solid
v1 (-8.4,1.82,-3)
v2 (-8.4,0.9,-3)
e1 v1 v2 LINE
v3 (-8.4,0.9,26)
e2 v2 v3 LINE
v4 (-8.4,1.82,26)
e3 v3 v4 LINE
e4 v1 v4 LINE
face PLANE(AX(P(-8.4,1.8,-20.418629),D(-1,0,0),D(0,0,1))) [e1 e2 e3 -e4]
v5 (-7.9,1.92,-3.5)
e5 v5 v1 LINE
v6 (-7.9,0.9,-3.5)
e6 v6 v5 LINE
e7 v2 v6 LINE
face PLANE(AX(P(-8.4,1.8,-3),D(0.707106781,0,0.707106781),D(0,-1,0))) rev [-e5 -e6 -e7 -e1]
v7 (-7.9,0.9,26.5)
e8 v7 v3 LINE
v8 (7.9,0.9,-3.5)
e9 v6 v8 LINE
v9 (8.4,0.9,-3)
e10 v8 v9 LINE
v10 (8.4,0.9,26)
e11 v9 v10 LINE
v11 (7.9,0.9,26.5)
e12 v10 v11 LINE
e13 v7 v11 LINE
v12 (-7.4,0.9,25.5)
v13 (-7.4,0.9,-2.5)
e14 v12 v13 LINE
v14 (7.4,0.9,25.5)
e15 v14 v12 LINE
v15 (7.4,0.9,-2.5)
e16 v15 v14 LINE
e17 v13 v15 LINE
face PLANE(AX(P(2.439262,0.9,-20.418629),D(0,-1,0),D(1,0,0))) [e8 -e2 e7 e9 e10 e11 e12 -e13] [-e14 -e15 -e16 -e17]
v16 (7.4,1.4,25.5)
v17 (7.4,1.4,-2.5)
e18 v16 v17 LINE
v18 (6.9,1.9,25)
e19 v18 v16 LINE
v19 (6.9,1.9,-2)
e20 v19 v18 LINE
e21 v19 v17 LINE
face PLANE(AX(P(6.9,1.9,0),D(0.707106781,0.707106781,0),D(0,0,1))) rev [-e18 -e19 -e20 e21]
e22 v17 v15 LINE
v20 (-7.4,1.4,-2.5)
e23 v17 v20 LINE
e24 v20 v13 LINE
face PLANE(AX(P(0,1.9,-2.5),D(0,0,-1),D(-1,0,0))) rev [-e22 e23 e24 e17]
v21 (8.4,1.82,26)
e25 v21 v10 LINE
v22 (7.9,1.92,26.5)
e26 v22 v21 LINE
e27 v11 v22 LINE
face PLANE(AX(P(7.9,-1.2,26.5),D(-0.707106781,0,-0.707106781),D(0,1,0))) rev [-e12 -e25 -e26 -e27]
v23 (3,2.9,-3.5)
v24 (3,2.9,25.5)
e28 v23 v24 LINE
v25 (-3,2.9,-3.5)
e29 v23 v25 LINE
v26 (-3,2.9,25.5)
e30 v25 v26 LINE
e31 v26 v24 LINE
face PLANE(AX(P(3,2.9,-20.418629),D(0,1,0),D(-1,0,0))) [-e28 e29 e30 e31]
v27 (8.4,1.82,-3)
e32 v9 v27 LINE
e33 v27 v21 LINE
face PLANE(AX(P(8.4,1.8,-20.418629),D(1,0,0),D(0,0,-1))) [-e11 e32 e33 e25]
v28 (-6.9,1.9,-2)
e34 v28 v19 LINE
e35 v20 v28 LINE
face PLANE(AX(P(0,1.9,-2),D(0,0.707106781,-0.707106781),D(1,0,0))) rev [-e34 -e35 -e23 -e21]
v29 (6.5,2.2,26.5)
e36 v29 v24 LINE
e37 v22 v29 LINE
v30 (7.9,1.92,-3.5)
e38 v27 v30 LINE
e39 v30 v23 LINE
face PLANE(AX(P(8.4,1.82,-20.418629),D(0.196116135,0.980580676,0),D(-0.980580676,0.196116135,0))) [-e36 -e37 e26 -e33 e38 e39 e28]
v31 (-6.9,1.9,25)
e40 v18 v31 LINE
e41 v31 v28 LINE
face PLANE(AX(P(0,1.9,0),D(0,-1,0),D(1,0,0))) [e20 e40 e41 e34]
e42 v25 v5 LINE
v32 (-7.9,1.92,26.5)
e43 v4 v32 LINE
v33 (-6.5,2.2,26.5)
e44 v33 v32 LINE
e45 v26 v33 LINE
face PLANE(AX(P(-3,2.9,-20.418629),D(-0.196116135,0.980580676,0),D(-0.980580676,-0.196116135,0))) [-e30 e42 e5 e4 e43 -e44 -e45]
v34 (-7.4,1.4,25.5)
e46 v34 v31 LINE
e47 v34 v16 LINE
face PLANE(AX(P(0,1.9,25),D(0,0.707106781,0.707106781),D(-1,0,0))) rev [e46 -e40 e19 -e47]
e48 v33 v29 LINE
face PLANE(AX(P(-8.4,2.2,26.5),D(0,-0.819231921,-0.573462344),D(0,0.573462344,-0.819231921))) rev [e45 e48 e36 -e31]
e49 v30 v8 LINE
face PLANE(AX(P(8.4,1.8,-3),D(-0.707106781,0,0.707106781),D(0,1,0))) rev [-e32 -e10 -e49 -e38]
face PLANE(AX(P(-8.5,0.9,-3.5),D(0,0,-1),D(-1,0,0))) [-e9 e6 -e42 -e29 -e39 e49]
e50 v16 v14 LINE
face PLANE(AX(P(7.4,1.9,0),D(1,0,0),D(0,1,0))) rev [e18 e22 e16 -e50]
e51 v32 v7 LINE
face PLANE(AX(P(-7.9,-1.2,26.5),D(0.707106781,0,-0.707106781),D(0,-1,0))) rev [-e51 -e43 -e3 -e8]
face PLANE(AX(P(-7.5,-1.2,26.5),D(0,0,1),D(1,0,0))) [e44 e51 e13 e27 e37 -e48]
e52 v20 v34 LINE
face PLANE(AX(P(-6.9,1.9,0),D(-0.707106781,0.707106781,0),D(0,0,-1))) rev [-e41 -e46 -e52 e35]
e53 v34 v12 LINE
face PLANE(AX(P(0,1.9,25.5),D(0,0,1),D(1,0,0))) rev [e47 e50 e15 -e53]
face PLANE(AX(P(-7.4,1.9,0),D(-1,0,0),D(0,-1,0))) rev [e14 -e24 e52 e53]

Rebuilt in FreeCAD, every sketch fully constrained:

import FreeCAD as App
import Part
import Sketcher
Q = App.Units.Quantity


def edges_at(feature, points):
    """Names of the edges that pass closest to the given points."""
    edges = feature.Shape.Edges
    near = lambda p: min(range(len(edges)), key=lambda i: edges[i].distToShape(Part.Vertex(*p))[0])
    return sorted({f"Edge{near(p) + 1}" for p in points})

doc = App.newDocument("Part")
body = doc.addObject("PartDesign::Body", "Body")

sketch1 = body.newObject("Sketcher::SketchObject", "Sketch")
sketch1.AttachmentSupport = (doc.getObject("XY_Plane"), [""])
sketch1.MapMode = "FlatFace"
sketch1.addGeometry(Part.LineSegment(App.Vector(8.4, 0.9, 0), App.Vector(8.4, 1.82, 0)), False)
sketch1.addGeometry(Part.LineSegment(App.Vector(8.4, 1.82, 0), App.Vector(3, 2.9, 0)), False)
sketch1.addGeometry(Part.LineSegment(App.Vector(3, 2.9, 0), App.Vector(-3, 2.9, 0)), False)
sketch1.addGeometry(Part.LineSegment(App.Vector(-3, 2.9, 0), App.Vector(-8.4, 1.82, 0)), False)
sketch1.addGeometry(Part.LineSegment(App.Vector(-8.4, 1.82, 0), App.Vector(-8.4, 0.9, 0)), False)
sketch1.addGeometry(Part.LineSegment(App.Vector(-8.4, 0.9, 0), App.Vector(8.4, 0.9, 0)), False)
sketch1.addConstraint(Sketcher.Constraint("Coincident", 0, 2, 1, 1))
sketch1.addConstraint(Sketcher.Constraint("Coincident", 1, 2, 2, 1))
sketch1.addConstraint(Sketcher.Constraint("Coincident", 2, 2, 3, 1))
sketch1.addConstraint(Sketcher.Constraint("Coincident", 3, 2, 4, 1))
sketch1.addConstraint(Sketcher.Constraint("Coincident", 4, 2, 5, 1))
sketch1.addConstraint(Sketcher.Constraint("Coincident", 5, 2, 0, 1))
sketch1.addConstraint(Sketcher.Constraint("Vertical", 0))
sketch1.addConstraint(Sketcher.Constraint("Horizontal", 2))
sketch1.addConstraint(Sketcher.Constraint("Vertical", 4))
sketch1.addConstraint(Sketcher.Constraint("Horizontal", 5))
sketch1.addConstraint(Sketcher.Constraint("Symmetric", 0, 2, 3, 2, -2))
sketch1.addConstraint(Sketcher.Constraint("Equal", 1, 3))
sketch1.addConstraint(Sketcher.Constraint("DistanceX", 2, 2, 2, 1, Q("6 mm")))
sketch1.addConstraint(Sketcher.Constraint("DistanceX", 5, 1, 5, 2, Q("16.8 mm")))
sketch1.addConstraint(Sketcher.Constraint("DistanceY", 4, 2, 2, 2, Q("2 mm")))
sketch1.addConstraint(Sketcher.Constraint("DistanceY", 0, 1, 0, 2, Q("0.92 mm")))
sketch1.addConstraint(Sketcher.Constraint("DistanceY", -1, 1, 1, 2, Q("2.9 mm")))
pad1 = body.newObject("PartDesign::Pad", "Pad")
pad1.Profile = sketch1
pad1.Type = "TwoLengths"
pad1.Length = 26.5
pad1.Length2 = 3.5

sketch2 = body.newObject("Sketcher::SketchObject", "Sketch001")
sketch2.AttachmentSupport = (doc.getObject("YZ_Plane"), [""])
sketch2.MapMode = "FlatFace"
sketch2.addGeometry(Part.LineSegment(App.Vector(2.9, 25.5, 0), App.Vector(2.9, 26.5, 0)), False)
sketch2.addGeometry(Part.LineSegment(App.Vector(2.9, 26.5, 0), App.Vector(2.2, 26.5, 0)), False)
sketch2.addGeometry(Part.LineSegment(App.Vector(2.2, 26.5, 0), App.Vector(2.9, 25.5, 0)), False)
sketch2.addConstraint(Sketcher.Constraint("Coincident", 0, 2, 1, 1))
sketch2.addConstraint(Sketcher.Constraint("Coincident", 1, 2, 2, 1))
sketch2.addConstraint(Sketcher.Constraint("Coincident", 2, 2, 0, 1))
sketch2.addConstraint(Sketcher.Constraint("Vertical", 0))
sketch2.addConstraint(Sketcher.Constraint("Horizontal", 1))
sketch2.addConstraint(Sketcher.Constraint("DistanceY", 0, 1, 0, 2, Q("1 mm")))
sketch2.addConstraint(Sketcher.Constraint("DistanceX", 1, 2, 1, 1, Q("0.7 mm")))
sketch2.addConstraint(Sketcher.Constraint("DistanceX", -1, 1, 0, 2, Q("2.9 mm")))
sketch2.addConstraint(Sketcher.Constraint("DistanceY", -1, 1, 0, 2, Q("26.5 mm")))
pocket1 = body.newObject("PartDesign::Pocket", "Pocket")
pocket1.Profile = sketch2
pocket1.Type = "ThroughAll"
pocket1.Midplane = True

sketch3 = body.newObject("Sketcher::SketchObject", "Sketch002")
sketch3.AttachmentSupport = (doc.getObject("XZ_Plane"), [""])
sketch3.MapMode = "FlatFace"
sketch3.AttachmentOffset = App.Placement(App.Vector(0, 0, -0.9), App.Rotation())
sketch3.addGeometry(Part.LineSegment(App.Vector(-7.4, 25.5, 0), App.Vector(-7.4, -2.5, 0)), False)
sketch3.addGeometry(Part.LineSegment(App.Vector(-7.4, -2.5, 0), App.Vector(7.4, -2.5, 0)), False)
sketch3.addGeometry(Part.LineSegment(App.Vector(7.4, -2.5, 0), App.Vector(7.4, 25.5, 0)), False)
sketch3.addGeometry(Part.LineSegment(App.Vector(7.4, 25.5, 0), App.Vector(-7.4, 25.5, 0)), False)
sketch3.addConstraint(Sketcher.Constraint("Coincident", 0, 2, 1, 1))
sketch3.addConstraint(Sketcher.Constraint("Coincident", 1, 2, 2, 1))
sketch3.addConstraint(Sketcher.Constraint("Coincident", 2, 2, 3, 1))
sketch3.addConstraint(Sketcher.Constraint("Coincident", 3, 2, 0, 1))
sketch3.addConstraint(Sketcher.Constraint("Vertical", 0))
sketch3.addConstraint(Sketcher.Constraint("Horizontal", 1))
sketch3.addConstraint(Sketcher.Constraint("Vertical", 2))
sketch3.addConstraint(Sketcher.Constraint("Horizontal", 3))
sketch3.addConstraint(Sketcher.Constraint("DistanceY", 0, 2, 0, 1, Q("28 mm")))
sketch3.addConstraint(Sketcher.Constraint("DistanceX", 1, 1, 1, 2, Q("14.8 mm")))
sketch3.addConstraint(Sketcher.Constraint("DistanceX", 0, 2, -1, 1, Q("7.4 mm")))
sketch3.addConstraint(Sketcher.Constraint("DistanceY", 0, 2, -1, 1, Q("2.5 mm")))
pocket2 = body.newObject("PartDesign::Pocket", "Pocket001")
pocket2.Profile = sketch3
pocket2.Length = 1
doc.recompute()

chamfer = body.newObject("PartDesign::Chamfer", "Chamfer")
chamfer.Base = (pocket2, edges_at(pocket2, [
    (-7.4, 1.9, 11.5),
    (0, 1.9, 25.5),
    (7.4, 1.9, 11.5),
    (0, 1.9, -2.5),
]))
chamfer.Size = 0.5
doc.recompute()

chamfer2 = body.newObject("PartDesign::Chamfer", "Chamfer001")
chamfer2.Base = (chamfer, edges_at(chamfer, [
    (8.4, 1.36, 26.5),
    (-8.4, 1.36, 26.5),
    (-8.4, 1.36, -3.5),
    (8.4, 1.36, -3.5),
]))
chamfer2.Size = 0.5

doc.recompute()
